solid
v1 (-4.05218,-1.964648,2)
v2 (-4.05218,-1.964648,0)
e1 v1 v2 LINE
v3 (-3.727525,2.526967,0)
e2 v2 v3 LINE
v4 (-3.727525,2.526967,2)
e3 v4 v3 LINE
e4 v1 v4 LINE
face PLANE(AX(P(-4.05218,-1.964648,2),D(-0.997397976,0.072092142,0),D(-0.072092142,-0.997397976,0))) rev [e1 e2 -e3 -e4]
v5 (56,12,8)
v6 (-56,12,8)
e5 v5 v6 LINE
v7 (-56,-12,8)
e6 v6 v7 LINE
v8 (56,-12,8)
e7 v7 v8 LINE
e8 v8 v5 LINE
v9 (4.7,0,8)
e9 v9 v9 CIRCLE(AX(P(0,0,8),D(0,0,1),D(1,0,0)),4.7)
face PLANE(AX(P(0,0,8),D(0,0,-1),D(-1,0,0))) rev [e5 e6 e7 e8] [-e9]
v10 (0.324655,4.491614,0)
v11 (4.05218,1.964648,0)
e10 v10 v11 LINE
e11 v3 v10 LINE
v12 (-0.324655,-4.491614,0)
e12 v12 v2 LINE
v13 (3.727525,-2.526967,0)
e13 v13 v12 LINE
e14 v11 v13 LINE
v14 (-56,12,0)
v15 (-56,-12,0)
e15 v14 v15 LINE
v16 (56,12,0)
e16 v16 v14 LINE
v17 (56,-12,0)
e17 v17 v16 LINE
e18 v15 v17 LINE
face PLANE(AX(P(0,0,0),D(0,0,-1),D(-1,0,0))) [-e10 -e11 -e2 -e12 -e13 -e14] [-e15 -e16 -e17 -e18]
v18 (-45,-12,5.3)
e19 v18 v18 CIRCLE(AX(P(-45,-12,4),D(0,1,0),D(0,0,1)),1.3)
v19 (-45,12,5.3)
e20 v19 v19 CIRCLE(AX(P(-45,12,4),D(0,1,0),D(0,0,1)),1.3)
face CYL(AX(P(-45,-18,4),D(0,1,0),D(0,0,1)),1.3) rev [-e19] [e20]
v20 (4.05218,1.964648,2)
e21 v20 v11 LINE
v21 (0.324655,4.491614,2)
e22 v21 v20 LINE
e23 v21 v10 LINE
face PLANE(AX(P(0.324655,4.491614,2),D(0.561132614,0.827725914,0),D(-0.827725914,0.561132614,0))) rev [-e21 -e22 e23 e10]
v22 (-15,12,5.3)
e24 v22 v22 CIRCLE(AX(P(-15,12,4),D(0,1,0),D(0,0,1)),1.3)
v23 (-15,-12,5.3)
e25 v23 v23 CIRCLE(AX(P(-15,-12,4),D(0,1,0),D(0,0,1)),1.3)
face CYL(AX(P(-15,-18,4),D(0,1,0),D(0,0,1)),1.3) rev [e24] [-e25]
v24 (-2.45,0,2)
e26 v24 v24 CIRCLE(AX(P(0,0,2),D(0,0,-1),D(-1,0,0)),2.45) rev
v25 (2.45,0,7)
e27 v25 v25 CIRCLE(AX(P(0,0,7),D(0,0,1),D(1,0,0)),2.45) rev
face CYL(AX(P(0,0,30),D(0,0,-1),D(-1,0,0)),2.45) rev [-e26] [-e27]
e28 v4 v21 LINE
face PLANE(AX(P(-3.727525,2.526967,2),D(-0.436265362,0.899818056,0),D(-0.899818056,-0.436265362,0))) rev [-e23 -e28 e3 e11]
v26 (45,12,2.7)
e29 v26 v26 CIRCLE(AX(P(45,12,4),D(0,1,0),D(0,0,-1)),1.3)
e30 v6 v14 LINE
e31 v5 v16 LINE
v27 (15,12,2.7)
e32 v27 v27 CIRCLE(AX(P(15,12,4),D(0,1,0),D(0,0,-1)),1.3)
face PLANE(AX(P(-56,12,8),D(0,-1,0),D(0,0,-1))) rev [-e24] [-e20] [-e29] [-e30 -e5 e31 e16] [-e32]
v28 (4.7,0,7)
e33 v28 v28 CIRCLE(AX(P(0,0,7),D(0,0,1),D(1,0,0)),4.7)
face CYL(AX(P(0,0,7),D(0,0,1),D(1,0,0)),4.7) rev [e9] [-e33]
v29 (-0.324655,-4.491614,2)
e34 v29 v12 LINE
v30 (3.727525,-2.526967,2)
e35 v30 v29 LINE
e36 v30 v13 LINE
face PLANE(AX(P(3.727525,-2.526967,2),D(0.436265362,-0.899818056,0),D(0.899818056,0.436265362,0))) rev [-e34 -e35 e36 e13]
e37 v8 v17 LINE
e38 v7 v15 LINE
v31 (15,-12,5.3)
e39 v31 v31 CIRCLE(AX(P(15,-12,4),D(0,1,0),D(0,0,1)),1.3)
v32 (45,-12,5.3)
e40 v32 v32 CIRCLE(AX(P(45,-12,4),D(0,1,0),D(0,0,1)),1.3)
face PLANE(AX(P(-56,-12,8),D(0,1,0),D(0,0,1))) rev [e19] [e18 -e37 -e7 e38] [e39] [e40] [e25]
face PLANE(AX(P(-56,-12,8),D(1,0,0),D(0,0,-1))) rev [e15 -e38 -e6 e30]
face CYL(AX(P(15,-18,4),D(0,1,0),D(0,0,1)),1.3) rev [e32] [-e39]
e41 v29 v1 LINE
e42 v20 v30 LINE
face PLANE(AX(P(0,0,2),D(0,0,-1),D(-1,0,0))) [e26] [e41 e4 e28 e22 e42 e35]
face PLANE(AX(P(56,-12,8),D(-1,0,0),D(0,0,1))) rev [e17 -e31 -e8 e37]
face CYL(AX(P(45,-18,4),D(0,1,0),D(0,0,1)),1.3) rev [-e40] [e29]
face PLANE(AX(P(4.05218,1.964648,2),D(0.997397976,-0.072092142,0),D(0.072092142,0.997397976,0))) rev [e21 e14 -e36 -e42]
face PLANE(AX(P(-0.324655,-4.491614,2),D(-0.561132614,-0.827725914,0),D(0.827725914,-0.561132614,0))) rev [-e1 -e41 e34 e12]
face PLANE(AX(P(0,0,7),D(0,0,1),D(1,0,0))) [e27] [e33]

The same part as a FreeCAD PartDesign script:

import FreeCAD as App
import Part
import Sketcher
Q = App.Units.Quantity

doc = App.newDocument("Part")
body = doc.addObject("PartDesign::Body", "Body")

# Sketch on XY plane
sketch1 = doc.addObject("Sketcher::SketchObject", "Sketch")
body.addObject(sketch1)
sketch1.AttachmentSupport = (doc.XY_Plane, [""])
sketch1.MapMode = "FlatFace"
sketch1.addGeometry([
    Part.LineSegment(App.Vector(-56, 12, 0), App.Vector(-56, -12, 0)),
    Part.LineSegment(App.Vector(-56, -12, 0), App.Vector(56, -12, 0)),
    Part.LineSegment(App.Vector(56, -12, 0), App.Vector(56, 12, 0)),
    Part.LineSegment(App.Vector(56, 12, 0), App.Vector(-56, 12, 0)),
], False)
sketch1.addConstraint([
    Sketcher.Constraint("Coincident", 0, 2, 1, 1),
    Sketcher.Constraint("Coincident", 1, 2, 2, 1),
    Sketcher.Constraint("Coincident", 2, 2, 3, 1),
    Sketcher.Constraint("Coincident", 3, 2, 0, 1),
    Sketcher.Constraint("Vertical", 0),
    Sketcher.Constraint("Horizontal", 1),
    Sketcher.Constraint("Vertical", 2),
    Sketcher.Constraint("Horizontal", 3),
    Sketcher.Constraint("Symmetric", 0, 2, 2, 2, -1, 1),
    Sketcher.Constraint("DistanceX", 1, 1, 1, 2, Q("112 mm")),
    Sketcher.Constraint("DistanceY", 0, 2, 0, 1, Q("24 mm")),
])
pad1 = doc.addObject("PartDesign::Pad", "Pad")
body.addObject(pad1)
pad1.Profile = sketch1
pad1.Length = 8

# Sketch on XZ plane
sketch2 = doc.addObject("Sketcher::SketchObject", "Sketch001")
body.addObject(sketch2)
sketch2.AttachmentSupport = (doc.XZ_Plane, [""])
sketch2.MapMode = "FlatFace"
sketch2.AttachmentOffset = App.Placement(App.Vector(0, 0, -12), App.Rotation())
sketch2.addGeometry([
    Part.Circle(App.Vector(-15, 4, 0), App.Vector(0, 0, 1), 1.3),
    Part.Circle(App.Vector(-45, 4, 0), App.Vector(0, 0, 1), 1.3),
    Part.Circle(App.Vector(45, 4, 0), App.Vector(0, 0, 1), 1.3),
    Part.Circle(App.Vector(15, 4, 0), App.Vector(0, 0, 1), 1.3),
], False)
sketch2.addConstraint([
    Sketcher.Constraint("Equal", 0, 1),
    Sketcher.Constraint("Equal", 1, 2),
    Sketcher.Constraint("Equal", 2, 3),
    Sketcher.Constraint("Symmetric", 1, 3, 2, 3, -2),
    Sketcher.Constraint("Symmetric", 0, 3, 3, 3, -2),
    Sketcher.Constraint("Horizontal", 0, 3, 1, 3),
    Sketcher.Constraint("Diameter", 0, Q("2.6 mm")),
    Sketcher.Constraint("DistanceX", 0, 3, -1, 1, Q("15 mm")),
    Sketcher.Constraint("DistanceY", -1, 1, 0, 3, Q("4 mm")),
    Sketcher.Constraint("DistanceX", 1, 3, -1, 1, Q("45 mm")),
])
pocket1 = doc.addObject("PartDesign::Pocket", "Pocket")
body.addObject(pocket1)
pocket1.Profile = sketch2
pocket1.Length = 30
pocket1.Reversed = True

# Sketch on XY plane
sketch3 = doc.addObject("Sketcher::SketchObject", "Sketch002")
body.addObject(sketch3)
sketch3.AttachmentSupport = (doc.XY_Plane, [""])
sketch3.MapMode = "FlatFace"
sketch3.addGeometry(Part.Circle(App.Vector(0, 0, 0), App.Vector(0, 0, 1), 2.45), False)
sketch3.addConstraint([
    Sketcher.Constraint("Coincident", 0, 3, -1, 1),
    Sketcher.Constraint("Diameter", 0, Q("4.9 mm")),
])
pocket2 = doc.addObject("PartDesign::Pocket", "Pocket001")
body.addObject(pocket2)
pocket2.Profile = sketch3
pocket2.Length = 30
pocket2.Reversed = True

# Sketch on XY plane
sketch4 = doc.addObject("Sketcher::SketchObject", "Sketch003")
body.addObject(sketch4)
sketch4.AttachmentSupport = (doc.XY_Plane, [""])
sketch4.MapMode = "FlatFace"
sketch4.addGeometry([
    Part.LineSegment(App.Vector(-4.05218, -1.964648, 0), App.Vector(-3.727525, 2.526967, 0)),  # 0
    Part.LineSegment(App.Vector(-3.727525, 2.526967, 0), App.Vector(0.324655, 4.491614, 0)),  # 1
    Part.LineSegment(App.Vector(0.324655, 4.491614, 0), App.Vector(4.05218, 1.964648, 0)),  # 2
    Part.LineSegment(App.Vector(4.05218, 1.964648, 0), App.Vector(3.727525, -2.526967, 0)),  # 3
    Part.LineSegment(App.Vector(3.727525, -2.526967, 0), App.Vector(-0.324655, -4.491614, 0)),  # 4
    Part.LineSegment(App.Vector(-0.324655, -4.491614, 0), App.Vector(-4.05218, -1.964648, 0)),  # 5
], False)
sketch4.addConstraint([
    Sketcher.Constraint("Coincident", 0, 2, 1, 1),
    Sketcher.Constraint("Coincident", 1, 2, 2, 1),
    Sketcher.Constraint("Coincident", 2, 2, 3, 1),
    Sketcher.Constraint("Coincident", 3, 2, 4, 1),
    Sketcher.Constraint("Coincident", 4, 2, 5, 1),
    Sketcher.Constraint("Coincident", 5, 2, 0, 1),
    Sketcher.Constraint("Symmetric", 0, 2, 3, 2, -1, 1),
    Sketcher.Constraint("Symmetric", 1, 2, 4, 2, -1, 1),
    Sketcher.Constraint("Symmetric", 2, 2, 5, 2, -1, 1),
    Sketcher.Constraint("Equal", 0, 1),
    Sketcher.Constraint("Equal", 1, 2),
    Sketcher.Constraint("DistanceX", -1, 1, 2, 2, Q("4.05218 mm")),
    Sketcher.Constraint("DistanceX", 0, 2, 1, 2, Q("4.05218 mm")),
    Sketcher.Constraint("DistanceY", 2, 2, 0, 2, Q("0.562319 mm")),
    Sketcher.Constraint("DistanceX", 1, 2, 3, 2, Q("3.40287 mm")),
])
pocket3 = doc.addObject("PartDesign::Pocket", "Pocket002")
body.addObject(pocket3)
pocket3.Profile = sketch4
pocket3.Length = 2
pocket3.Reversed = True

# Sketch on XY plane
sketch5 = doc.addObject("Sketcher::SketchObject", "Sketch004")
body.addObject(sketch5)
sketch5.AttachmentSupport = (doc.XY_Plane, [""])
sketch5.MapMode = "FlatFace"
sketch5.AttachmentOffset = App.Placement(App.Vector(0, 0, 8), App.Rotation())
sketch5.addGeometry(Part.Circle(App.Vector(0, 0, 0), App.Vector(0, 0, 1), 4.7), False)
sketch5.addConstraint([
    Sketcher.Constraint("Coincident", 0, 3, -1, 1),
    Sketcher.Constraint("Diameter", 0, Q("9.4 mm")),
])
pocket4 = doc.addObject("PartDesign::Pocket", "Pocket003")
body.addObject(pocket4)
pocket4.Profile = sketch5
pocket4.Length = 1

doc.recompute()
